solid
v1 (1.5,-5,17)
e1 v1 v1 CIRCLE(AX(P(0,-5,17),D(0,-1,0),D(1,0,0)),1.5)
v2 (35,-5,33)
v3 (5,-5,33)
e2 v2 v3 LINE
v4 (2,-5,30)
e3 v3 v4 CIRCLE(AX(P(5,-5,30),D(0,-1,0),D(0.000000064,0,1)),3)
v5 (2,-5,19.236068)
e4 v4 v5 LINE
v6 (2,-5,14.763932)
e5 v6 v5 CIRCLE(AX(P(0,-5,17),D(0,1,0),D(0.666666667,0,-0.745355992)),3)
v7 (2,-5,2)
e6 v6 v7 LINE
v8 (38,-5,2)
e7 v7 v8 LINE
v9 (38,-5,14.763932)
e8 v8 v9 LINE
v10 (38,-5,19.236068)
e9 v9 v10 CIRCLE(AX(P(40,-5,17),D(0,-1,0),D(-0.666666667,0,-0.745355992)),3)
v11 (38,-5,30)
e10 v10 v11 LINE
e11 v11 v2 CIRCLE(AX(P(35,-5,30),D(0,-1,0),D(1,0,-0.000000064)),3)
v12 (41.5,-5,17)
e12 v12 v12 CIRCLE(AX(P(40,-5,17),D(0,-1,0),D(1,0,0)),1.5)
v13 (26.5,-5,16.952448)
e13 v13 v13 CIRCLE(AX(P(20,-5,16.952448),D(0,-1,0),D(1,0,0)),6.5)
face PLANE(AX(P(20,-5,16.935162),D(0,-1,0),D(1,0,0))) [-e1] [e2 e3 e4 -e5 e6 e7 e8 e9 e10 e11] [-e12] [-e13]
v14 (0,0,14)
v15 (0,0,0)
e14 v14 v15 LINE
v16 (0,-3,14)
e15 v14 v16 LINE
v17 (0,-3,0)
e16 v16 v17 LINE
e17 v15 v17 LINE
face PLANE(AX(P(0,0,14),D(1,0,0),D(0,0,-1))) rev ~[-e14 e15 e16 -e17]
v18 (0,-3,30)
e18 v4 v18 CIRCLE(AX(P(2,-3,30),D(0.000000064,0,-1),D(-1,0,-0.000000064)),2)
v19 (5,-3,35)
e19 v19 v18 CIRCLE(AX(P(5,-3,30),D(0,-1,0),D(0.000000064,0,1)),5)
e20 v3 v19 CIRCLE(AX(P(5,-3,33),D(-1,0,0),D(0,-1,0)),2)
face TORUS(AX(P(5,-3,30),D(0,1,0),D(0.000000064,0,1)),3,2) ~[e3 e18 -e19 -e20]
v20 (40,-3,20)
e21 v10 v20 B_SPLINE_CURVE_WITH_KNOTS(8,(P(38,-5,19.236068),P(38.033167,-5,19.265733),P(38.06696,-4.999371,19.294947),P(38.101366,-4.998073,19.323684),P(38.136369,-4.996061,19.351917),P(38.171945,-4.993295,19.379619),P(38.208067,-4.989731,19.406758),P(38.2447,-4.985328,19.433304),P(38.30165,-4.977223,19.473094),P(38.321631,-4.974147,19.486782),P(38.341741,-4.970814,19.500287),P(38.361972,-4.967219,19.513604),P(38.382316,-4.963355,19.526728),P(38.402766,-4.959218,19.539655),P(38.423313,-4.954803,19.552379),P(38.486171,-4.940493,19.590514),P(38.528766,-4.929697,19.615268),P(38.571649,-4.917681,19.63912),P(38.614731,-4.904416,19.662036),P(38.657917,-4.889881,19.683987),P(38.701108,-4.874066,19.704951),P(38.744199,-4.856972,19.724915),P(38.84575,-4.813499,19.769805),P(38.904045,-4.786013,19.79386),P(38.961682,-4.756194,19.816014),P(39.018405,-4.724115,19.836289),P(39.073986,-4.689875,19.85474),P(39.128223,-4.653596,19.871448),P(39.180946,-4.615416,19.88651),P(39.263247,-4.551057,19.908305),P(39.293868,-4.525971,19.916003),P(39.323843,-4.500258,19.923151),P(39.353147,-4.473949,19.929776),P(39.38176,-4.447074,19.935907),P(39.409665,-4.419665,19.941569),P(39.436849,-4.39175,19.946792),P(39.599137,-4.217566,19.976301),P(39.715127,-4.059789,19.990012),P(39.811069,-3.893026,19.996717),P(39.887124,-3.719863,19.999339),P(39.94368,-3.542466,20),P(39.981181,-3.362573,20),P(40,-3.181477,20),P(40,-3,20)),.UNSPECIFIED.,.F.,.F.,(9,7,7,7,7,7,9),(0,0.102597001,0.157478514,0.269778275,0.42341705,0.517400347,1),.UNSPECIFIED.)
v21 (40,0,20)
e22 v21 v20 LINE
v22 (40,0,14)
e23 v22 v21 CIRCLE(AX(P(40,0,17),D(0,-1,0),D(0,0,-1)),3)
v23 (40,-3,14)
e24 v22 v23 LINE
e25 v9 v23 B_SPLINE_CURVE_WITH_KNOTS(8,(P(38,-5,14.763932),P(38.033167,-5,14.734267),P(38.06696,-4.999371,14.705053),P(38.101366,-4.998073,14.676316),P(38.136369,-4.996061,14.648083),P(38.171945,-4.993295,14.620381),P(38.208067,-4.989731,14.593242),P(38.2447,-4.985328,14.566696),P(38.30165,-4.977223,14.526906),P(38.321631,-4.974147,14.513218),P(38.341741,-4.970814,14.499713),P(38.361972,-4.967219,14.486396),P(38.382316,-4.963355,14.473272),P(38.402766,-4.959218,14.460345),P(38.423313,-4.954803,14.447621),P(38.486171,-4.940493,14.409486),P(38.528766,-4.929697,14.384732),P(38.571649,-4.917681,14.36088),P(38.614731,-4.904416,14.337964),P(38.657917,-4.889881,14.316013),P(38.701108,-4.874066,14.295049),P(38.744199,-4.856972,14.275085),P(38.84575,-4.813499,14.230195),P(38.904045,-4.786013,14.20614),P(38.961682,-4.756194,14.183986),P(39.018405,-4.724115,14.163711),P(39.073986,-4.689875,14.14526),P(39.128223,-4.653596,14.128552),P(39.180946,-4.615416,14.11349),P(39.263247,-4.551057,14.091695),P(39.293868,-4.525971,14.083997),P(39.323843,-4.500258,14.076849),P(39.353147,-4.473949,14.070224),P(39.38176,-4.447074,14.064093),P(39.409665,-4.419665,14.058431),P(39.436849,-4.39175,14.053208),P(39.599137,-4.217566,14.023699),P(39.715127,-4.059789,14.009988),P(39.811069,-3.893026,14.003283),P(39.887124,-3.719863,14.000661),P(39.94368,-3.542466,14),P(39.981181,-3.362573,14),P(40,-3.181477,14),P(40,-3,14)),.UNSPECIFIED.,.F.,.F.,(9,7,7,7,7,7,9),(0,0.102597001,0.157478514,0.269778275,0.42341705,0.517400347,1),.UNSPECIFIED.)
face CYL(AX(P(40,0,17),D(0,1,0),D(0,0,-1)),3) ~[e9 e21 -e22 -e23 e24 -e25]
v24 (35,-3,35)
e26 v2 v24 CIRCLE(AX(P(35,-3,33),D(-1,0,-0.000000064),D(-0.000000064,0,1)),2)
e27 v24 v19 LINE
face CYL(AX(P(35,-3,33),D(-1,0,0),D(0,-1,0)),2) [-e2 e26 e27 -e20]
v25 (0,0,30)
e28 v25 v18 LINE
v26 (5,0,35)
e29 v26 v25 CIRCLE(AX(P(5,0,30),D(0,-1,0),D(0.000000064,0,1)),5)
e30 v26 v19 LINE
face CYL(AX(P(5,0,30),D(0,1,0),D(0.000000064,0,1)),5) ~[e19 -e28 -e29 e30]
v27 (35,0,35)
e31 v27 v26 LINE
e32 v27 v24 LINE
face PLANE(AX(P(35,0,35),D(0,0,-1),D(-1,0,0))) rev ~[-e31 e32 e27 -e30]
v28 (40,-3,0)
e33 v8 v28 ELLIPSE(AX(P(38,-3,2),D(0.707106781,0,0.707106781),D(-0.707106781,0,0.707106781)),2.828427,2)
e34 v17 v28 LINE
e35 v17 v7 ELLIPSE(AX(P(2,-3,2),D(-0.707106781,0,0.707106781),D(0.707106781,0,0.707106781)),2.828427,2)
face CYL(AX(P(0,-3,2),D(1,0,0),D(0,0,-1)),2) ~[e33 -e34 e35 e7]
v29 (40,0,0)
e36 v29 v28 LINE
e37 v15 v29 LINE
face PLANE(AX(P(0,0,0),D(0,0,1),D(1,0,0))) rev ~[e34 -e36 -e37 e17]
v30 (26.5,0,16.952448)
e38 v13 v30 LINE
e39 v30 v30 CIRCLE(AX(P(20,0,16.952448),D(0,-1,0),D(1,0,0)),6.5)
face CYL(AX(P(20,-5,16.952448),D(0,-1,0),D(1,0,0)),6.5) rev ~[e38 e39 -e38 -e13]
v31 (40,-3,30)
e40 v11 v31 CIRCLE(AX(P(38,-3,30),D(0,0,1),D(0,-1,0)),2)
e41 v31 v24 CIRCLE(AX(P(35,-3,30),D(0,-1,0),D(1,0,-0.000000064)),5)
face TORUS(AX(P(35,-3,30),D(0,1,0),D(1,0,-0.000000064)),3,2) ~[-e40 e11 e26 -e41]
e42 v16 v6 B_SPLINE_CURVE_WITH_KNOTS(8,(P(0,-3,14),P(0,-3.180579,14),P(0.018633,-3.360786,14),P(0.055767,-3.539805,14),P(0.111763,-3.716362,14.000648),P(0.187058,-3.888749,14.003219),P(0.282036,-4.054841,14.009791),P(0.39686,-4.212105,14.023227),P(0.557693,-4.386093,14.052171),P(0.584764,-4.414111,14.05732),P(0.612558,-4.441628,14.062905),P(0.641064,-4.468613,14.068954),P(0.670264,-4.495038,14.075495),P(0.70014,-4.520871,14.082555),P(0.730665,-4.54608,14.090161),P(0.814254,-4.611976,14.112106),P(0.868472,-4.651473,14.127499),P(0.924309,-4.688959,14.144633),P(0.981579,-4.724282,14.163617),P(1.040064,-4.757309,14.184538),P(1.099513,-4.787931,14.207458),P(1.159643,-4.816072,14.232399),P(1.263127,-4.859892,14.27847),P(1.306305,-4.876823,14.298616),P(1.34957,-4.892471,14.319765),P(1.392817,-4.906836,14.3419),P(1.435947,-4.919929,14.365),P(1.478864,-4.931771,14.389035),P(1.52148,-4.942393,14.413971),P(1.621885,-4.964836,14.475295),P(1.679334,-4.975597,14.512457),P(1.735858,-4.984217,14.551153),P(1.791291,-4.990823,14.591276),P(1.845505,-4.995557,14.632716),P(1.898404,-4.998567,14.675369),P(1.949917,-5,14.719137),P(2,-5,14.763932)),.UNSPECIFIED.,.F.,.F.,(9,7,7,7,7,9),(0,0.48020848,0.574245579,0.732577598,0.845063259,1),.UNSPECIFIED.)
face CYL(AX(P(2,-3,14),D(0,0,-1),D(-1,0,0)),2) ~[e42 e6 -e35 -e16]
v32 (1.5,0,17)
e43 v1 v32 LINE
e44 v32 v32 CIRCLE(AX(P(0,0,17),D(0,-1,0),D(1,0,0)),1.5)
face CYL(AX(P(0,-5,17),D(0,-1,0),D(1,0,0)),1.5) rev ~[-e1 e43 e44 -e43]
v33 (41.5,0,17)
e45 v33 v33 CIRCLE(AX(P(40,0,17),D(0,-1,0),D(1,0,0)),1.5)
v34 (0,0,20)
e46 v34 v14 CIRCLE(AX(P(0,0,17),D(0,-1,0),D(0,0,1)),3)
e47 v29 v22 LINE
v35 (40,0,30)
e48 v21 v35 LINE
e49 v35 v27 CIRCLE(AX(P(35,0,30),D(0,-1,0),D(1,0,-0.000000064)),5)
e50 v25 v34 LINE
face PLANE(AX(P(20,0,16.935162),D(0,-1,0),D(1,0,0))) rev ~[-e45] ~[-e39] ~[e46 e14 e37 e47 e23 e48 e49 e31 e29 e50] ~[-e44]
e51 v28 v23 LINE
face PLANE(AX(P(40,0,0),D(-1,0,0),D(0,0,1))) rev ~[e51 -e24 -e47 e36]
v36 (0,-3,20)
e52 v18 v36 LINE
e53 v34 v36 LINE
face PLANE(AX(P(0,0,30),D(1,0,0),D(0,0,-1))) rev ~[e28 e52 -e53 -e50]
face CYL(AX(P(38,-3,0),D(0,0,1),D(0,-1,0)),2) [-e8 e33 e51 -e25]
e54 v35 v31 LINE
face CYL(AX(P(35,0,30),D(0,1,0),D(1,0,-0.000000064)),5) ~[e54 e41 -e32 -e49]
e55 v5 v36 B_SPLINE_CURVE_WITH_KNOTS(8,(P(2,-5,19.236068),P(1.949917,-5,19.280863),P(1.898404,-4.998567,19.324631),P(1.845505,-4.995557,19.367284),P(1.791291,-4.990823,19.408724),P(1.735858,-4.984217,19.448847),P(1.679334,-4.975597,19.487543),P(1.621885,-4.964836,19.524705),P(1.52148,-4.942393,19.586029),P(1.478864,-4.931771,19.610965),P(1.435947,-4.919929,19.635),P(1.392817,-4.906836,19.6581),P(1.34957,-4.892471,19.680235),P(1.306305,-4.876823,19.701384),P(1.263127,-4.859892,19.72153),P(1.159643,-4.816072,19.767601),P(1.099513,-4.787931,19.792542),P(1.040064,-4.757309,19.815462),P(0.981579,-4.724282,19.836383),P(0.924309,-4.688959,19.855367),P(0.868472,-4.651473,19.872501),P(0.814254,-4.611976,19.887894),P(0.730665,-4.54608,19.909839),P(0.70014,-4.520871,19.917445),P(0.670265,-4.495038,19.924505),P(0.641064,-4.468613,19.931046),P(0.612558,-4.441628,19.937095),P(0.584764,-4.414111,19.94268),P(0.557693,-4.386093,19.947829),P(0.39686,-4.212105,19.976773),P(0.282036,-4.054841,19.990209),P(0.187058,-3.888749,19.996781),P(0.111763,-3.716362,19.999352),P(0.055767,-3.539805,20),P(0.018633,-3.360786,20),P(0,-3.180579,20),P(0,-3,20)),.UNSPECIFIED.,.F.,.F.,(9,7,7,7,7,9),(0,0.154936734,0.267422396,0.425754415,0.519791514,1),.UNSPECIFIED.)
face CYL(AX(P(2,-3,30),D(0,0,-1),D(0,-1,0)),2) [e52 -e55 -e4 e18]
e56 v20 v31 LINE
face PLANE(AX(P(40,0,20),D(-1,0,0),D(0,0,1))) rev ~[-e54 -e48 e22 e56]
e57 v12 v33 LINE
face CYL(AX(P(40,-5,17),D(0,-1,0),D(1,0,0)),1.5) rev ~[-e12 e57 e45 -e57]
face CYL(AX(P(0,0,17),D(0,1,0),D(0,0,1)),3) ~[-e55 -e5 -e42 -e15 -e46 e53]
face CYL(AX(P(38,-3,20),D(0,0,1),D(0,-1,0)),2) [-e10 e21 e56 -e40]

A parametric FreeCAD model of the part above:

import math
import FreeCAD as App
import Part
import Sketcher
Q = App.Units.Quantity


def edges_at(feature, points):
    """Names of the edges that pass closest to the given points."""
    edges = feature.Shape.Edges
    near = lambda p: min(range(len(edges)), key=lambda i: edges[i].distToShape(Part.Vertex(*p))[0])
    return sorted({f"Edge{near(p) + 1}" for p in points})

doc = App.newDocument("Part")
body = doc.addObject("PartDesign::Body", "Body")

# Sketch on XZ plane
sketch1 = body.newObject("Sketcher::SketchObject", "Sketch")
sketch1.AttachmentSupport = (doc.getObject("XZ_Plane"), [""])
sketch1.MapMode = "FlatFace"
sketch1.addGeometry([
    Part.LineSegment(App.Vector(0, 14, 0), App.Vector(0, 0, 0)),  # 0
    Part.LineSegment(App.Vector(0, 0, 0), App.Vector(40, 0, 0)),  # 1
    Part.LineSegment(App.Vector(40, 0, 0), App.Vector(40, 14, 0)),  # 2
    Part.ArcOfCircle(Part.Circle(App.Vector(40, 17, 0), App.Vector(0, 0, 1), 3), math.radians(-90), math.radians(90)),  # 3
    Part.LineSegment(App.Vector(40, 20, 0), App.Vector(40, 30, 0)),  # 4
    Part.ArcOfCircle(Part.Circle(App.Vector(35, 30, 0), App.Vector(0, 0, 1), 5), math.radians(-0.000004), math.radians(90.000004)),  # 5
    Part.LineSegment(App.Vector(35, 35, 0), App.Vector(5, 35, 0)),  # 6
    Part.ArcOfCircle(Part.Circle(App.Vector(5, 30, 0), App.Vector(0, 0, 1), 5), math.radians(89.999996), math.radians(180.000004)),  # 7
    Part.LineSegment(App.Vector(0, 30, 0), App.Vector(0, 20, 0)),  # 8
    Part.ArcOfCircle(Part.Circle(App.Vector(0, 17, 0), App.Vector(0, 0, 1), 3), math.radians(90), math.radians(270)),  # 9
], False)
sketch1.addConstraint([
    Sketcher.Constraint("Coincident", 0, 2, 1, 1),
    Sketcher.Constraint("Coincident", 1, 2, 2, 1),
    Sketcher.Constraint("Coincident", 2, 2, 3, 1),
    Sketcher.Constraint("Coincident", 3, 2, 4, 1),
    Sketcher.Constraint("Tangent", 4, 2, 5, 1),
    Sketcher.Constraint("Tangent", 5, 2, 6, 1),
    Sketcher.Constraint("Tangent", 6, 2, 7, 1),
    Sketcher.Constraint("Tangent", 7, 2, 8, 1),
    Sketcher.Constraint("Coincident", 8, 2, 9, 1),
    Sketcher.Constraint("Coincident", 9, 2, 0, 1),
    Sketcher.Constraint("Vertical", 0),
    Sketcher.Constraint("Horizontal", 1),
    Sketcher.Constraint("Vertical", 2),
    Sketcher.Constraint("Vertical", 4),
    Sketcher.Constraint("Horizontal", 6),
    Sketcher.Constraint("Vertical", 8),
    Sketcher.Constraint("Coincident", 0, 2, -1, 1),
    Sketcher.Constraint("Equal", 5, 7),
    Sketcher.Constraint("Equal", 3, 9),
    Sketcher.Constraint("PointOnObject", 9, 3, -2),
    Sketcher.Constraint("PointOnObject", 7, 2, -2),
    Sketcher.Constraint("Horizontal", 3, 3, 9, 3),
    Sketcher.Constraint("Vertical", 3, 3, 1, 2),
    Sketcher.Constraint("Vertical", 2, 2, 3, 2),
    Sketcher.Constraint("Radius", 3, Q("3 mm")),
    Sketcher.Constraint("Radius", 5, Q("5 mm")),
    Sketcher.Constraint("DistanceX", 1, 1, 1, 2, Q("40 mm")),
    Sketcher.Constraint("DistanceY", 0, 2, 0, 1, Q("14 mm")),
    Sketcher.Constraint("DistanceY", 4, 1, 4, 2, Q("10 mm")),
])
pad1 = body.newObject("PartDesign::Pad", "Pad")
pad1.Profile = sketch1
pad1.Length = 5

# Sketch on XZ plane
sketch2 = body.newObject("Sketcher::SketchObject", "Sketch001")
sketch2.AttachmentSupport = (doc.getObject("XZ_Plane"), [""])
sketch2.MapMode = "FlatFace"
sketch2.AttachmentOffset = App.Placement(App.Vector(0, 0, 5), App.Rotation())
sketch2.addGeometry([
    Part.Circle(App.Vector(0, 17, 0), App.Vector(0, 0, 1), 1.5),
    Part.Circle(App.Vector(40, 17, 0), App.Vector(0, 0, 1), 1.5),
], False)
sketch2.addConstraint([
    Sketcher.Constraint("Equal", 0, 1),
    Sketcher.Constraint("PointOnObject", 0, 3, -2),
    Sketcher.Constraint("Horizontal", 0, 3, 1, 3),
    Sketcher.Constraint("Diameter", 0, Q("3 mm")),
    Sketcher.Constraint("DistanceY", -1, 1, 0, 3, Q("17 mm")),
    Sketcher.Constraint("DistanceX", -1, 1, 1, 3, Q("40 mm")),
])
pocket1 = body.newObject("PartDesign::Pocket", "Pocket")
pocket1.Profile = sketch2
pocket1.Length = 25

# Sketch on XZ plane
sketch3 = body.newObject("Sketcher::SketchObject", "Sketch002")
sketch3.AttachmentSupport = (doc.getObject("XZ_Plane"), [""])
sketch3.MapMode = "FlatFace"
sketch3.AttachmentOffset = App.Placement(App.Vector(0, 0, 5), App.Rotation())
sketch3.addGeometry(Part.Circle(App.Vector(20, 16.952448, 0), App.Vector(0, 0, 1), 6.5), False)
sketch3.addConstraint([
    Sketcher.Constraint("Diameter", 0, Q("13 mm")),
    Sketcher.Constraint("DistanceX", -1, 1, 0, 3, Q("20 mm")),
    Sketcher.Constraint("DistanceY", -1, 1, 0, 3, Q("16.952448 mm")),
])
pocket2 = body.newObject("PartDesign::Pocket", "Pocket001")
pocket2.Profile = sketch3
pocket2.Length = 25
doc.recompute()

fillet = body.newObject("PartDesign::Fillet", "Fillet")
fillet.Base = (pocket2, edges_at(pocket2, [
    (0, -5, 25),
    (40, -5, 7),
    (20, -5, 0),
    (0, -5, 7),
]))
fillet.Radius = 2

doc.recompute()
